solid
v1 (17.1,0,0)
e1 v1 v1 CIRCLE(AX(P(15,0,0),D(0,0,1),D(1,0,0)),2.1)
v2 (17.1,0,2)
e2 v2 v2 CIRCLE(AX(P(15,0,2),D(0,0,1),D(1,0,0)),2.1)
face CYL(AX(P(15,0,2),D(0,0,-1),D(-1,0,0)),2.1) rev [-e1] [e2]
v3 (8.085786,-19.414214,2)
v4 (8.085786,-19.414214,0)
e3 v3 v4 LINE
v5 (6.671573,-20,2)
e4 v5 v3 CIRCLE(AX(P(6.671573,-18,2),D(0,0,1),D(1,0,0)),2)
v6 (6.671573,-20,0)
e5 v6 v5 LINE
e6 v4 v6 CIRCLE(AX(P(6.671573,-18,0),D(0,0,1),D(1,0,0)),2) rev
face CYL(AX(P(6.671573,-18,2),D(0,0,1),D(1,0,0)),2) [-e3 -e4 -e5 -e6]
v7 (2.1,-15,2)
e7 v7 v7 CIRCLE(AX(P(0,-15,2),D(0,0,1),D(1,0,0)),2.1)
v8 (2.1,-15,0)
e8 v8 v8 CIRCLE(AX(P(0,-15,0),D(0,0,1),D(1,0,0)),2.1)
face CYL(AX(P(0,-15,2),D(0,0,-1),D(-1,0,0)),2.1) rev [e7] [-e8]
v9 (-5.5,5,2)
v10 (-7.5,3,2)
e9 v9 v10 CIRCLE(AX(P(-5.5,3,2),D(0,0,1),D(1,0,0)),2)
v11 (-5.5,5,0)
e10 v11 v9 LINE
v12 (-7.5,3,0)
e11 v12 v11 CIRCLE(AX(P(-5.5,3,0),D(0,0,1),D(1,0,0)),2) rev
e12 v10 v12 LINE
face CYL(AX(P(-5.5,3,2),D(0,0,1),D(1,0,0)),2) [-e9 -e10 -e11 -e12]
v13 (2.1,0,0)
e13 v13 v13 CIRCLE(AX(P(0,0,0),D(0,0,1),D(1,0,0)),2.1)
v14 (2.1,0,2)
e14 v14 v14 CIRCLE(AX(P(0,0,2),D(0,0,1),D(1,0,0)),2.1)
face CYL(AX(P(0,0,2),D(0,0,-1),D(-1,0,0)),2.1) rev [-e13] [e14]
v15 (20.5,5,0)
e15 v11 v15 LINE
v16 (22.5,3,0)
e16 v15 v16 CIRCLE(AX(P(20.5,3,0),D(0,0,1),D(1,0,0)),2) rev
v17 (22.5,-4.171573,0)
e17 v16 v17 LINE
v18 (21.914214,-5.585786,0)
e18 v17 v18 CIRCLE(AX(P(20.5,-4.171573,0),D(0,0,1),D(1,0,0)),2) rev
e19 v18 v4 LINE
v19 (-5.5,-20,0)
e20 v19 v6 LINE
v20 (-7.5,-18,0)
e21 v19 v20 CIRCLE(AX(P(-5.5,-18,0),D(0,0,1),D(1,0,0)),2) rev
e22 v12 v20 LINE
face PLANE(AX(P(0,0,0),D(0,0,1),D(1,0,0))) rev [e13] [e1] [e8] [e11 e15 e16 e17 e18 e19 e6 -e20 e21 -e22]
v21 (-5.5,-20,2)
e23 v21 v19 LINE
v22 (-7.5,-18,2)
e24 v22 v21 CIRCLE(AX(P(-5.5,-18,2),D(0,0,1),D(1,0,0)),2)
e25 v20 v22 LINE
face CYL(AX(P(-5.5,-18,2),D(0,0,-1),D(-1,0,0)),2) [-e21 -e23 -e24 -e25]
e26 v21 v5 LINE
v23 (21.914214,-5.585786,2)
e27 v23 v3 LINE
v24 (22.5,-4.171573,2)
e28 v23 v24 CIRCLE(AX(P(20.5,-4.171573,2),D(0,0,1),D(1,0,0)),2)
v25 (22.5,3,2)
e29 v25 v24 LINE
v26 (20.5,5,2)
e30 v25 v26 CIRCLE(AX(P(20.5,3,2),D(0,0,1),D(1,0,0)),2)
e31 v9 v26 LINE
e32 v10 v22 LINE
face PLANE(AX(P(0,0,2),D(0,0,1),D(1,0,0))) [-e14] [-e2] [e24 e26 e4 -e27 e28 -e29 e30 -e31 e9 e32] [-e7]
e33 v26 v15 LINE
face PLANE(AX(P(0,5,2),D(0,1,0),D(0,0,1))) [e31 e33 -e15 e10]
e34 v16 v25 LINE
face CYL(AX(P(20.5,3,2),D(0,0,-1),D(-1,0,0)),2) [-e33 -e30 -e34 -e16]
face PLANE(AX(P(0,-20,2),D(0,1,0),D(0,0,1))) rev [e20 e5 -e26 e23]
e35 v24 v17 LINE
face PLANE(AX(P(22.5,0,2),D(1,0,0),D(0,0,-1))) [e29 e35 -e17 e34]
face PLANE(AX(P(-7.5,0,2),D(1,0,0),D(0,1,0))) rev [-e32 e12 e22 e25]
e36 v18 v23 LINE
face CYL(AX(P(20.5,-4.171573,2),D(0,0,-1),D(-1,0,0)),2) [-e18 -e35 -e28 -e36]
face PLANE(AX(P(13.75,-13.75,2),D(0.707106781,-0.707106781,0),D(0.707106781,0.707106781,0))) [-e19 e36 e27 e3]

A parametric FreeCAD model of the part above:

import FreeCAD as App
import Part
import Sketcher
from FreeCAD import Vector


def edges_at(feature, points):
    """Names of the edges that pass closest to the given points."""
    edges = feature.Shape.Edges
    near = lambda p: min(range(len(edges)), key=lambda i: edges[i].distToShape(Part.Vertex(*p))[0])
    return sorted({f"Edge{near(p) + 1}" for p in points})

doc = App.newDocument("Part")
params = doc.addObject("Spreadsheet::Sheet", "Params")
for row, (alias, value) in enumerate([
    ("sketch1_diameter", "4.2 mm"),
    ("sketch1_width", "15 mm"),
    ("sketch1_width2", "30 mm"),
    ("sketch1_height", "25 mm"),
    ("sketch1_height2", "10 mm"),
    ("pad1_length", "2 mm"),
    ("fillet_radius", "2 mm"),
], start=1):
    params.set(f"A{row}", alias)
    params.set(f"B{row}", "=" + value)
    params.setAlias(f"B{row}", alias)

body = doc.addObject("PartDesign::Body", "Body")

# Sketch on XY plane
sketch1 = doc.addObject("Sketcher::SketchObject", "Sketch")
body.addObject(sketch1)
sketch1.AttachmentSupport = (doc.XY_Plane, [""])
sketch1.MapMode = "FlatFace"
sketch1.addGeometry([
    Part.LineSegment(Vector(-7.5, 5, 0), Vector(-7.5, -20, 0)),  # 0
    Part.LineSegment(Vector(-7.5, -20, 0), Vector(7.5, -20, 0)),  # 1
    Part.LineSegment(Vector(7.5, -20, 0), Vector(22.5, -5, 0)),  # 2
    Part.LineSegment(Vector(22.5, -5, 0), Vector(22.5, 5, 0)),  # 3
    Part.LineSegment(Vector(22.5, 5, 0), Vector(-7.5, 5, 0)),  # 4
    Part.Circle(Vector(0, -15, 0), Vector(0, 0, 1), 2.1),  # 5
    Part.Circle(Vector(0, 0, 0), Vector(0, 0, 1), 2.1),  # 6
    Part.Circle(Vector(15, 0, 0), Vector(0, 0, 1), 2.1),  # 7
], False)
sketch1.addConstraint([
    Sketcher.Constraint("Coincident", 0, 2, 1, 1),
    Sketcher.Constraint("Coincident", 1, 2, 2, 1),
    Sketcher.Constraint("Coincident", 2, 2, 3, 1),
    Sketcher.Constraint("Coincident", 3, 2, 4, 1),
    Sketcher.Constraint("Coincident", 4, 2, 0, 1),
    Sketcher.Constraint("Vertical", 0),
    Sketcher.Constraint("Horizontal", 1),
    Sketcher.Constraint("Vertical", 3),
    Sketcher.Constraint("Horizontal", 4),
    Sketcher.Constraint("Coincident", 6, 3, -1, 1),
    Sketcher.Constraint("Equal", 5, 6),
    Sketcher.Constraint("Equal", 6, 7),
    Sketcher.Constraint("PointOnObject", 5, 3, -2),
    Sketcher.Constraint("PointOnObject", 7, 3, -1),
    Sketcher.Constraint("Diameter", 5, 4.2),
    Sketcher.Constraint("DistanceX", 1, 1, 1, 2, 15.0),
    Sketcher.Constraint("DistanceX", 4, 2, 4, 1, 30.0),
    Sketcher.Constraint("DistanceY", 0, 2, 0, 1, 25.0),
    Sketcher.Constraint("DistanceY", 3, 1, 3, 2, 10.0),
    Sketcher.Constraint("DistanceY", 5, 3, -1, 1, 15.0),
    Sketcher.Constraint("DistanceX", -1, 1, 7, 3, 15.0),
    Sketcher.Constraint("DistanceY", 0, 2, -1, 1, 20.0),
    Sketcher.Constraint("DistanceX", 0, 2, -1, 1, 7.5),
])
sketch1.setExpression("Constraints[14]", "Params.sketch1_diameter")
sketch1.setExpression("Constraints[15]", "Params.sketch1_width")
sketch1.setExpression("Constraints[16]", "Params.sketch1_width2")
sketch1.setExpression("Constraints[17]", "Params.sketch1_height")
sketch1.setExpression("Constraints[18]", "Params.sketch1_height2")
pad1 = doc.addObject("PartDesign::Pad", "Pad")
body.addObject(pad1)
pad1.Profile = sketch1
pad1.setExpression("Length", "Params.pad1_length")
doc.recompute()

fillet = doc.addObject("PartDesign::Fillet", "Fillet")
body.addObject(fillet)
fillet.Base = (pad1, edges_at(pad1, [
    (7.5, -20, 1),
    (-7.5, -20, 1),
    (-7.5, 5, 1),
    (22.5, 5, 1),
    (22.5, -5, 1),
]))
fillet.setExpression("Radius", "Params.fillet_radius")

doc.recompute()
